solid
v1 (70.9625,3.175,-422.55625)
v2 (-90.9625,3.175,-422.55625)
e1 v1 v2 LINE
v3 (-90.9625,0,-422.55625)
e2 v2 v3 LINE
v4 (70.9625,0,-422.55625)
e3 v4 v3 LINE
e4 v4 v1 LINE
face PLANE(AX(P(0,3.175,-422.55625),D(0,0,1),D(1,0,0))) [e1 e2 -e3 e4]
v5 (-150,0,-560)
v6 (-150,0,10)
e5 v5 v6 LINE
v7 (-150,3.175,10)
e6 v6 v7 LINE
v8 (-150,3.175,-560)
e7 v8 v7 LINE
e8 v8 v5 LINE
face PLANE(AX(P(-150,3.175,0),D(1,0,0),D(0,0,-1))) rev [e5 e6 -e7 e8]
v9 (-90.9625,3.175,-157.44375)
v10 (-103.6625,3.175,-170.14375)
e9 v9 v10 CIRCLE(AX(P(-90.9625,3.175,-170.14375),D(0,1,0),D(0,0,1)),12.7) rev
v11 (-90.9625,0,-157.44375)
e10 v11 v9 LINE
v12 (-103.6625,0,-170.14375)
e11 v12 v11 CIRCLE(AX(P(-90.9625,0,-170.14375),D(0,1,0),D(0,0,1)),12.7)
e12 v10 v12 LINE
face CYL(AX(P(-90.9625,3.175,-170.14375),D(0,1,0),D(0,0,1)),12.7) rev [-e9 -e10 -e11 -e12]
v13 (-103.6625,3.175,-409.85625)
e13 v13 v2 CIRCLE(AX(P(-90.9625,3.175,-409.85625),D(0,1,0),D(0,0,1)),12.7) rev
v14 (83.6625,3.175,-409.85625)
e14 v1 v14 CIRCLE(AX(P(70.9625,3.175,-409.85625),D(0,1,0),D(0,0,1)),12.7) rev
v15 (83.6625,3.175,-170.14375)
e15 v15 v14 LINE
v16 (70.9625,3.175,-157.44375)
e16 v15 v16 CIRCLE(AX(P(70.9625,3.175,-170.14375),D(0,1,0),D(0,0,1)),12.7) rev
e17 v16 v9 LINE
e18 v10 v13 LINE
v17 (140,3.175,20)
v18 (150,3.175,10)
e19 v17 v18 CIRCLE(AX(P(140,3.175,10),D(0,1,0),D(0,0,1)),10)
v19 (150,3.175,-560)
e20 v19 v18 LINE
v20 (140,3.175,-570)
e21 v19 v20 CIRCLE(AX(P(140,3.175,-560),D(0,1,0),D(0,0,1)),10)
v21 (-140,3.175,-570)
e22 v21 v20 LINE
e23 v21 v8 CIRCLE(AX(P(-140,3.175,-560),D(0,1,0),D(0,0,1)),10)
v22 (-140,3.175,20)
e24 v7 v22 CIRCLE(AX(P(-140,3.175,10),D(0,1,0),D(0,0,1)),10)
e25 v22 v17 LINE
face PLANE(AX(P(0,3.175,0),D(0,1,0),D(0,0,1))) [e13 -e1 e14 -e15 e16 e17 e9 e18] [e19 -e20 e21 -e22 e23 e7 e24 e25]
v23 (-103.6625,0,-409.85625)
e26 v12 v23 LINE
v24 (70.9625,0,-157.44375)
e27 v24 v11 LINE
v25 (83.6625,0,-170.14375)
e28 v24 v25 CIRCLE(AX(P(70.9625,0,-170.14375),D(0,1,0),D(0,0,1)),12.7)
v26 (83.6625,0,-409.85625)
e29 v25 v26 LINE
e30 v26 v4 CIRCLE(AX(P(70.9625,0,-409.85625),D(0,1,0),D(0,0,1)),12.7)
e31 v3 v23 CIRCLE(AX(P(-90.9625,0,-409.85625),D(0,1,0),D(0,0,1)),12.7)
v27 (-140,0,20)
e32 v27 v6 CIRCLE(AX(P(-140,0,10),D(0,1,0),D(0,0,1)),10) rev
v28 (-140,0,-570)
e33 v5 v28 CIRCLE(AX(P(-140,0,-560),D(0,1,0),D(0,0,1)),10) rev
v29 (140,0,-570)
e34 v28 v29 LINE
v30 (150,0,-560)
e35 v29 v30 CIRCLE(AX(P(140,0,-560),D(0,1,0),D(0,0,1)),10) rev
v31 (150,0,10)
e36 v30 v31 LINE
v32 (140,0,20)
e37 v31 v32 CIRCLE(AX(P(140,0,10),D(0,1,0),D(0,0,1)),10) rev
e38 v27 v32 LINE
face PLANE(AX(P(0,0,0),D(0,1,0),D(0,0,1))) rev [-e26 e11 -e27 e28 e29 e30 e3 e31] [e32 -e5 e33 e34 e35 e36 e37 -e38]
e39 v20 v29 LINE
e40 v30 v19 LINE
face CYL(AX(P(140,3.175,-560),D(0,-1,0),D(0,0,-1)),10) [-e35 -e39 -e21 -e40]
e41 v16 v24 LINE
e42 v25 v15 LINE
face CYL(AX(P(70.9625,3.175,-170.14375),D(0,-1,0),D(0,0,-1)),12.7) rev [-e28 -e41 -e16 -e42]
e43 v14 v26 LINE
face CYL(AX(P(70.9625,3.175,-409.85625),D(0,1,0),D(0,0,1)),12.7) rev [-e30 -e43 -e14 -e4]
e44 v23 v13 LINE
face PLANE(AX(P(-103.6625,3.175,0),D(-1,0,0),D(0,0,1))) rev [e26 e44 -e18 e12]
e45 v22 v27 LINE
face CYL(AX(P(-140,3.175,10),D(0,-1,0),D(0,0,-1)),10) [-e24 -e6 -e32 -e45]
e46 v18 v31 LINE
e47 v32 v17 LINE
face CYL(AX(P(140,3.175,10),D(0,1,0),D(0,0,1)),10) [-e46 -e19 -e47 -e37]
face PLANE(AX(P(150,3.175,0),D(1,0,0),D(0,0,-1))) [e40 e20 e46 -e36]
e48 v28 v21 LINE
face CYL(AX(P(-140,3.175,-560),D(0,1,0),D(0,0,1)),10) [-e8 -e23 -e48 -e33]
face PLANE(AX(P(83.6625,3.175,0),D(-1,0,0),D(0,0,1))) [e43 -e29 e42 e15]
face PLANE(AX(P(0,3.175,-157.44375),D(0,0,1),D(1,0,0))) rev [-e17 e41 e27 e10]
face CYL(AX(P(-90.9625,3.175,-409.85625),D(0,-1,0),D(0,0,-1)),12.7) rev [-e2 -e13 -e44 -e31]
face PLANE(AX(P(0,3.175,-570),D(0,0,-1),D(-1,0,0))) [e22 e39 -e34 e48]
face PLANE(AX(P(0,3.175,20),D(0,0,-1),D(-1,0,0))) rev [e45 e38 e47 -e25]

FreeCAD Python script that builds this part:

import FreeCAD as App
import Part
import Sketcher

V = App.Vector
Q = App.Units.Quantity


def edges_at(feature, points):
    """Names of the edges that pass closest to the given points."""
    edges = feature.Shape.Edges
    near = lambda p: min(range(len(edges)), key=lambda i: edges[i].distToShape(Part.Vertex(*p))[0])
    return sorted({f"Edge{near(p) + 1}" for p in points})


def add_polygon(sketch, points):
    """Adds a closed chain of lines whose ends are joined by coincident constraints."""
    first, n = sketch.GeometryCount, len(points)
    for a, b in zip(points, points[1:] + points[:1]):
        sketch.addGeometry(Part.LineSegment(App.Vector(*a, 0), App.Vector(*b, 0)), False)
    for i in range(n):
        sketch.addConstraint(Sketcher.Constraint("Coincident", first + i, 2, first + (i + 1) % n, 1))

doc = App.newDocument("Part")
body = doc.addObject("PartDesign::Body", "Body")

# Sketch on XZ plane
sketch1 = body.newObject("Sketcher::SketchObject", "Sketch")
sketch1.AttachmentSupport = (doc.getObject("XZ_Plane"), [""])
sketch1.MapMode = "FlatFace"
add_polygon(sketch1, [(-150, -570), (-150, 20), (150, 20), (150, -570)])  # lines 0-3
add_polygon(sketch1, [(84, -157), (-104, -157), (-104, -423), (84, -423)])  # lines 4-7
sketch1.addConstraint([
    Sketcher.Constraint("Vertical", 0),
    Sketcher.Constraint("Horizontal", 1),
    Sketcher.Constraint("Vertical", 2),
    Sketcher.Constraint("Horizontal", 3),
    Sketcher.Constraint("Horizontal", 4),
    Sketcher.Constraint("Vertical", 5),
    Sketcher.Constraint("Horizontal", 6),
    Sketcher.Constraint("Vertical", 7),
    Sketcher.Constraint("DistanceX", 4, 2, 4, 1, Q("7.375 in")),
    Sketcher.Constraint("DistanceY", 5, 2, 5, 1, Q("10.4375 in")),
    Sketcher.Constraint("DistanceX", 1, 1, 1, 2, 300.0),
    Sketcher.Constraint("DistanceY", 0, 1, 0, 2, 590.0),
    Sketcher.Constraint("DistanceX", 0, 2, -1, 1, 150.0),
    Sketcher.Constraint("DistanceY", -1, 1, 0, 2, 20.0),
    Sketcher.Constraint("DistanceX", 4, 2, -1, 1, 103.6625),
    Sketcher.Constraint("DistanceY", 4, 2, -1, 1, 157.44375),
])
pad1 = body.newObject("PartDesign::Pad", "Pad")
pad1.Profile = sketch1
pad1.Length = Q("0.125 in")
pad1.Reversed = True
doc.recompute()

fillet = body.newObject("PartDesign::Fillet", "Fillet")
fillet.Base = (pad1, edges_at(pad1, [
    (150, 1.587, -570),
    (150, 1.587, 20),
    (-150, 1.587, 20),
    (-150, 1.587, -570),
]))
fillet.Radius = 10
doc.recompute()

fillet2 = body.newObject("PartDesign::Fillet", "Fillet001")
fillet2.Base = (fillet, edges_at(fillet, [
    (83.662, 1.587, -157.444),
    (83.662, 1.587, -422.556),
    (-103.662, 1.587, -422.556),
    (-103.662, 1.587, -157.444),
]))
fillet2.Radius = Q("0.5 in")

doc.recompute()
